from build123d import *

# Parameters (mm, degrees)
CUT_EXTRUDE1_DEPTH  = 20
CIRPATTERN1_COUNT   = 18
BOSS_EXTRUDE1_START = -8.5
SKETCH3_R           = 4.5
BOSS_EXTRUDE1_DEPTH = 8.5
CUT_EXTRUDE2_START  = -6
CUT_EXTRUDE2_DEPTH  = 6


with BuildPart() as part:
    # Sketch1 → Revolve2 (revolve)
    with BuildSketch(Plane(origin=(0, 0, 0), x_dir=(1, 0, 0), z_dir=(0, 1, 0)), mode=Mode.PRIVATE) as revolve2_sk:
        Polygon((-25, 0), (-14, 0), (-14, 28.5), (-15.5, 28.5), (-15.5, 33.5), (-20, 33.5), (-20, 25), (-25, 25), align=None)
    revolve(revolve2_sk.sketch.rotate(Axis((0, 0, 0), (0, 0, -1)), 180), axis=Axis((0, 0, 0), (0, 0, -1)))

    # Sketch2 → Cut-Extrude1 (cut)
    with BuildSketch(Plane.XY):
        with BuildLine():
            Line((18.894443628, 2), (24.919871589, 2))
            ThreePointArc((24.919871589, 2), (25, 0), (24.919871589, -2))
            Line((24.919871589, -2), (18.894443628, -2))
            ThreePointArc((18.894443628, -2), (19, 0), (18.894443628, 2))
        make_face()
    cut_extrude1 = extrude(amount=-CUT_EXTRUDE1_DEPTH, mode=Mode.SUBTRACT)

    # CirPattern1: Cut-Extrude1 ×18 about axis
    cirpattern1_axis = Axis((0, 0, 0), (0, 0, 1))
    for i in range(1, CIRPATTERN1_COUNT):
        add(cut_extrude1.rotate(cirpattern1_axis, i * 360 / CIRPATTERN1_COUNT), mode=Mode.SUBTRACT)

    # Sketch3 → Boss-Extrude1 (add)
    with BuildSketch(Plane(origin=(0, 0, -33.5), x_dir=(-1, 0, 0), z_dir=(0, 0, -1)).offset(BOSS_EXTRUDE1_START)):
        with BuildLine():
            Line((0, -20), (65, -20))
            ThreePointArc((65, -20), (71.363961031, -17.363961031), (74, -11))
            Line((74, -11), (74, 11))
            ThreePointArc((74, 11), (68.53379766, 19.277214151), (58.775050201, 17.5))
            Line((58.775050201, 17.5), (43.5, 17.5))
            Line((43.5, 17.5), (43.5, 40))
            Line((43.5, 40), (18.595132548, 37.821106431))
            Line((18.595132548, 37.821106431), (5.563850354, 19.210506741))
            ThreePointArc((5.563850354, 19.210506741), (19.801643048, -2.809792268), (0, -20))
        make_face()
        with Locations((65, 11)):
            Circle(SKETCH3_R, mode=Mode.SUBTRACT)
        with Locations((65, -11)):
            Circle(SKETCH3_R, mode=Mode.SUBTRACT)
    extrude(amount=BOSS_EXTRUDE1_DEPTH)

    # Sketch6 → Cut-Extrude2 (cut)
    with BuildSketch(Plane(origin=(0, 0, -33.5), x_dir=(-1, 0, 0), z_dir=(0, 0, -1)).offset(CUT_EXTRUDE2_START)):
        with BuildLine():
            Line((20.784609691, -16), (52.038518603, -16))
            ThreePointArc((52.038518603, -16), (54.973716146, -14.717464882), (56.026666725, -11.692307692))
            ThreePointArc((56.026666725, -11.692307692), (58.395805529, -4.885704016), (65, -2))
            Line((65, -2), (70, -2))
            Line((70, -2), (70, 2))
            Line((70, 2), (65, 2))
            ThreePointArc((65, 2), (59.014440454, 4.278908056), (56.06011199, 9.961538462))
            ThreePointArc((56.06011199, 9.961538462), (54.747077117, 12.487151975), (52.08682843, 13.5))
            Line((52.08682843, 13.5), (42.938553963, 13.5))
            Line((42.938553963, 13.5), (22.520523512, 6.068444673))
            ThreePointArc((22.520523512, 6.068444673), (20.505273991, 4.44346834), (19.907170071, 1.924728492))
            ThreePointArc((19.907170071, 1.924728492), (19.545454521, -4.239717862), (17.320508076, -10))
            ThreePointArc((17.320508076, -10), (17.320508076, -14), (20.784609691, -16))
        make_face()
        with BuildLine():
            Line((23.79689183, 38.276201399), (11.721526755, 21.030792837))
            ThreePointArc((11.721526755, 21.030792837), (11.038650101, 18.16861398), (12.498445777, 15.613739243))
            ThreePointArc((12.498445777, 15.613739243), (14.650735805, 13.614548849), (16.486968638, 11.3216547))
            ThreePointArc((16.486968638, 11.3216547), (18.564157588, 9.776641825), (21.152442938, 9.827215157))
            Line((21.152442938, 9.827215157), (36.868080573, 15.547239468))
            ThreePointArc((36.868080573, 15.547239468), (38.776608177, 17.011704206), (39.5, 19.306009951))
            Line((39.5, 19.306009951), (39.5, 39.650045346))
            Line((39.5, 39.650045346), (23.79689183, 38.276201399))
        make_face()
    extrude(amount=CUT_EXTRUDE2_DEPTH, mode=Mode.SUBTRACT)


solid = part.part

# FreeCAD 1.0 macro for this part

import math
import FreeCAD as App
import Part
import Sketcher
from FreeCAD import Vector
Q = App.Units.Quantity

doc = App.newDocument("Part")
params = doc.addObject("Spreadsheet::Sheet", "Params")
for row, (alias, value) in enumerate([
    ("sketch1_width", "11 mm"),
    ("sketch1_width2", "5 mm"),
    ("sketch1_height", "25 mm"),
    ("sketch1_width3", "1.5 mm"),
    ("sketch1_height2", "28.5 mm"),
    ("revolution_angle", "360 deg"),
    ("sketch2_radius", "19 mm"),
    ("sketch2_radius2", "25 mm"),
    ("pocket1_length", "20 mm"),
    ("sketch3_diameter", "9 mm"),
    ("sketch3_radius", "9 mm"),
    ("sketch3_radius2", "20 mm"),
    ("sketch3_width", "65 mm"),
    ("sketch3_height", "22 mm"),
    ("pad1_length", "8.5 mm"),
    ("sketch4_radius", "4 mm"),
    ("sketch4_radius2", "9 mm"),
    ("sketch4_radius3", "20 mm"),
    ("sketch4_width", "5 mm"),
    ("sketch4_height", "4 mm"),
    ("pocket2_length", "6 mm"),
], start=1):
    params.set(f"A{row}", alias)
    params.set(f"B{row}", "=" + value)
    params.setAlias(f"B{row}", alias)

body = doc.addObject("PartDesign::Body", "Body")

# Sketch on XZ plane
sketch1 = body.newObject("Sketcher::SketchObject", "Sketch")
sketch1.AttachmentSupport = (doc.getObject("XZ_Plane"), [""])
sketch1.MapMode = "FlatFace"
sketch1.addGeometry([
    Part.LineSegment(Vector(-25, 0, 0), Vector(-14, 0, 0)),  # 0
    Part.LineSegment(Vector(-14, 0, 0), Vector(-14, -28.5, 0)),  # 1
    Part.LineSegment(Vector(-14, -28.5, 0), Vector(-15.5, -28.5, 0)),  # 2
    Part.LineSegment(Vector(-15.5, -28.5, 0), Vector(-15.5, -33.5, 0)),  # 3
    Part.LineSegment(Vector(-15.5, -33.5, 0), Vector(-20, -33.5, 0)),  # 4
    Part.LineSegment(Vector(-20, -33.5, 0), Vector(-20, -25, 0)),  # 5
    Part.LineSegment(Vector(-20, -25, 0), Vector(-25, -25, 0)),  # 6
    Part.LineSegment(Vector(-25, -25, 0), Vector(-25, 0, 0)),  # 7
], False)
sketch1.addConstraint([
    Sketcher.Constraint("Coincident", 0, 2, 1, 1),
    Sketcher.Constraint("Coincident", 1, 2, 2, 1),
    Sketcher.Constraint("Coincident", 2, 2, 3, 1),
    Sketcher.Constraint("Coincident", 3, 2, 4, 1),
    Sketcher.Constraint("Coincident", 4, 2, 5, 1),
    Sketcher.Constraint("Coincident", 5, 2, 6, 1),
    Sketcher.Constraint("Coincident", 6, 2, 7, 1),
    Sketcher.Constraint("Coincident", 7, 2, 0, 1),
    Sketcher.Constraint("Horizontal", 0),
    Sketcher.Constraint("Vertical", 1),
    Sketcher.Constraint("Horizontal", 2),
    Sketcher.Constraint("Vertical", 3),
    Sketcher.Constraint("Horizontal", 4),
    Sketcher.Constraint("Vertical", 5),
    Sketcher.Constraint("Horizontal", 6),
    Sketcher.Constraint("Vertical", 7),
    Sketcher.Constraint("PointOnObject", 0, 2, -1),
    Sketcher.Constraint("Equal", 6, 3),
    Sketcher.Constraint("DistanceX", 0, 1, 0, 2, 11.0),
    Sketcher.Constraint("DistanceX", 6, 2, 6, 1, 5.0),
    Sketcher.Constraint("DistanceY", 7, 1, 7, 2, 25.0),
    Sketcher.Constraint("DistanceX", 2, 2, 2, 1, 1.5),
    Sketcher.Constraint("DistanceY", 1, 2, 1, 1, 28.5),
    Sketcher.Constraint("DistanceX", 0, 2, -1, 1, 14.0),
])
sketch1.setExpression("Constraints[18]", "Params.sketch1_width")
sketch1.setExpression("Constraints[19]", "Params.sketch1_width2")
sketch1.setExpression("Constraints[20]", "Params.sketch1_height")
sketch1.setExpression("Constraints[21]", "Params.sketch1_width3")
sketch1.setExpression("Constraints[22]", "Params.sketch1_height2")
revolution = body.newObject("PartDesign::Revolution", "Revolution")
revolution.Profile = sketch1
revolution.ReferenceAxis = (sketch1, ["V_Axis"])
revolution.setExpression("Angle", "Params.revolution_angle")

# Sketch on XY plane
sketch2 = body.newObject("Sketcher::SketchObject", "Sketch001")
sketch2.AttachmentSupport = (doc.getObject("XY_Plane"), [""])
sketch2.MapMode = "FlatFace"
sketch2.addGeometry([
    Part.LineSegment(Vector(24.919872, 2, 0), Vector(18.894444, 2, 0)),
    Part.ArcOfCircle(Part.Circle(Vector(0, 0, 0), Vector(0, 0, 1), 19), math.radians(-6.042328), math.radians(6.042328)),
    Part.LineSegment(Vector(18.894444, -2, 0), Vector(24.919872, -2, 0)),
    Part.ArcOfCircle(Part.Circle(Vector(0, 0, 0), Vector(0, 0, 1), 25), math.radians(-4.588566), math.radians(4.588566)),
], False)
sketch2.addConstraint([
    Sketcher.Constraint("Coincident", 0, 2, 1, 2),
    Sketcher.Constraint("Coincident", 1, 1, 2, 1),
    Sketcher.Constraint("Coincident", 2, 2, 3, 1),
    Sketcher.Constraint("Coincident", 3, 2, 0, 1),
    Sketcher.Constraint("Horizontal", 0),
    Sketcher.Constraint("Horizontal", 2),
    Sketcher.Constraint("Coincident", 1, 3, -1, 1),
    Sketcher.Constraint("Coincident", 3, 3, -1, 1),
    Sketcher.Constraint("Vertical", 0, 2, 1, 1),
    Sketcher.Constraint("Radius", 1, 19.0),
    Sketcher.Constraint("Radius", 3, 25.0),
    Sketcher.Constraint("DistanceY", -1, 1, 0, 2, 2.0),
])
sketch2.setExpression("Constraints[9]", "Params.sketch2_radius")
sketch2.setExpression("Constraints[10]", "Params.sketch2_radius2")
pocket1 = body.newObject("PartDesign::Pocket", "Pocket")
pocket1.Profile = sketch2
pocket1.setExpression("Length", "Params.pocket1_length")
doc.recompute()

polarpattern = body.newObject("PartDesign::PolarPattern", "PolarPattern")
polarpattern.Originals = [pocket1]
polarpattern.Axis = (doc.getObject("Z_Axis"), [""])
polarpattern.Angle = 360
polarpattern.Occurrences = 18
body.Tip = polarpattern

# Sketch on XY plane
sketch3 = body.newObject("Sketcher::SketchObject", "Sketch002")
sketch3.AttachmentSupport = (doc.getObject("XY_Plane"), [""])
sketch3.MapMode = "FlatFace"
sketch3.AttachmentOffset = App.Placement(Vector(0, 0, -25), App.Rotation())
sketch3.addGeometry([
    Part.LineSegment(Vector(0, -20, 0), Vector(-65, -20, 0)),  # 0
    Part.ArcOfCircle(Part.Circle(Vector(-65, -11, 0), Vector(0, 0, 1), 9), math.radians(180), math.radians(270)),  # 1
    Part.LineSegment(Vector(-74, -11, 0), Vector(-74, 11, 0)),  # 2
    Part.ArcOfCircle(Part.Circle(Vector(-65, 11, 0), Vector(0, 0, 1), 9), math.radians(46.238257), math.radians(180)),  # 3
    Part.LineSegment(Vector(-58.77505, 17.5, 0), Vector(-43.5, 17.5, 0)),  # 4
    Part.LineSegment(Vector(-43.5, 17.5, 0), Vector(-43.5, 40, 0)),  # 5
    Part.LineSegment(Vector(-43.5, 40, 0), Vector(-18.595133, 37.821106, 0)),  # 6
    Part.LineSegment(Vector(-18.595133, 37.821106, 0), Vector(-5.56385, 19.210507, 0)),  # 7
    Part.ArcOfCircle(Part.Circle(Vector(0, 0, 0), Vector(0, 0, 1), 20), math.radians(106.152358), math.radians(270)),  # 8
    Part.Circle(Vector(-65, -11, 0), Vector(0, 0, 1), 4.5),  # 9
    Part.Circle(Vector(-65, 11, 0), Vector(0, 0, 1), 4.5),  # 10
], False)
sketch3.addConstraint([
    Sketcher.Constraint("Tangent", 0, 2, 1, 2),
    Sketcher.Constraint("Tangent", 1, 1, 2, 1),
    Sketcher.Constraint("Tangent", 2, 2, 3, 2),
    Sketcher.Constraint("Coincident", 3, 1, 4, 1),
    Sketcher.Constraint("Coincident", 4, 2, 5, 1),
    Sketcher.Constraint("Coincident", 5, 2, 6, 1),
    Sketcher.Constraint("Coincident", 6, 2, 7, 1),
    Sketcher.Constraint("Coincident", 7, 2, 8, 1),
    Sketcher.Constraint("Tangent", 8, 2, 0, 1),
    Sketcher.Constraint("Horizontal", 0),
    Sketcher.Constraint("Vertical", 2),
    Sketcher.Constraint("Horizontal", 4),
    Sketcher.Constraint("Vertical", 5),
    Sketcher.Constraint("Coincident", 8, 3, -1, 1),
    Sketcher.Constraint("Coincident", 9, 3, 1, 3),
    Sketcher.Constraint("Coincident", 10, 3, 3, 3),
    Sketcher.Constraint("Equal", 1, 3),
    Sketcher.Constraint("Equal", 9, 10),
    Sketcher.Constraint("Diameter", 9, 9.0),
    Sketcher.Constraint("Radius", 1, 9.0),
    Sketcher.Constraint("Radius", 8, 20.0),
    Sketcher.Constraint("DistanceX", 0, 2, 0, 1, 65.0),
    Sketcher.Constraint("DistanceY", 2, 1, 2, 2, 22.0),
    Sketcher.Constraint("Angle", 6, Q("-5 deg")),
    Sketcher.Constraint("Angle", 7, Q("-55 deg")),
    Sketcher.Constraint("Distance", 6, 25.0),
    Sketcher.Constraint("DistanceY", 5, 1, 5, 2, 22.5),
    Sketcher.Constraint("DistanceY", -1, 1, 5, 2, 40.0),
    Sketcher.Constraint("DistanceX", 4, 2, -1, 1, 43.5),
])
sketch3.setExpression("Constraints[18]", "Params.sketch3_diameter")
sketch3.setExpression("Constraints[19]", "Params.sketch3_radius")
sketch3.setExpression("Constraints[20]", "Params.sketch3_radius2")
sketch3.setExpression("Constraints[21]", "Params.sketch3_width")
sketch3.setExpression("Constraints[22]", "Params.sketch3_height")
pad1 = body.newObject("PartDesign::Pad", "Pad")
pad1.Profile = sketch3
pad1.setExpression("Length", "Params.pad1_length")
pad1.Reversed = True

# Sketch on XY plane
sketch4 = body.newObject("Sketcher::SketchObject", "Sketch003")
sketch4.AttachmentSupport = (doc.getObject("XY_Plane"), [""])
sketch4.MapMode = "FlatFace"
sketch4.AttachmentOffset = App.Placement(Vector(0, 0, -27.5), App.Rotation())
sketch4.addGeometry([
    Part.LineSegment(Vector(-20.78461, -16, 0), Vector(-52.038519, -16, 0)),  # 0
    Part.ArcOfCircle(Part.Circle(Vector(-52.038519, -12, 0), Vector(0, 0, 1), 4), math.radians(175.588274), math.radians(270)),  # 1
    Part.ArcOfCircle(Part.Circle(Vector(-65, -11, 0), Vector(0, 0, 1), 9), math.radians(-4.411726), math.radians(90)),  # 2
    Part.LineSegment(Vector(-65, -2, 0), Vector(-70, -2, 0)),  # 3
    Part.LineSegment(Vector(-70, -2, 0), Vector(-70, 2, 0)),  # 4
    Part.LineSegment(Vector(-70, 2, 0), Vector(-65, 2, 0)),  # 5
    Part.ArcOfCircle(Part.Circle(Vector(-65, 11, 0), Vector(0, 0, 1), 9), math.radians(-90), math.radians(-6.62581)),  # 6
    Part.ArcOfCircle(Part.Circle(Vector(-52.086828, 9.5, 0), Vector(0, 0, 1), 4), math.radians(90), math.radians(173.37419)),  # 7
    Part.LineSegment(Vector(-52.086828, 13.5, 0), Vector(-42.938554, 13.5, 0)),  # 8
    Part.LineSegment(Vector(-42.938554, 13.5, 0), Vector(-22.520524, 6.068445, 0)),  # 9
    Part.ArcOfCircle(Part.Circle(Vector(-23.888604, 2.309674, 0), Vector(0, 0, 1), 4), math.radians(-5.522488), math.radians(70)),  # 10
    Part.ArcOfCircle(Part.Circle(Vector(0, 0, 0), Vector(0, 0, 1), 20), math.radians(174.477512), math.radians(210)),  # 11
    Part.ArcOfCircle(Part.Circle(Vector(-20.78461, -12, 0), Vector(0, 0, 1), 4), math.radians(-90), math.radians(30)),  # 12
    Part.LineSegment(Vector(-23.796892, 38.276201, 0), Vector(-11.721527, 21.030793, 0)),  # 13
    Part.ArcOfCircle(Part.Circle(Vector(-14.998135, 18.736487, 0), Vector(0, 0, 1), 4), math.radians(-51.323516), math.radians(35)),  # 14
    Part.ArcOfCircle(Part.Circle(Vector(0, 0, 0), Vector(0, 0, 1), 20), math.radians(128.676484), math.radians(145.522488)),  # 15
    Part.ArcOfCircle(Part.Circle(Vector(-19.784362, 13.585986, 0), Vector(0, 0, 1), 4), math.radians(-110), math.radians(-34.477512)),  # 16
    Part.LineSegment(Vector(-21.152443, 9.827215, 0), Vector(-36.868081, 15.547239, 0)),  # 17
    Part.ArcOfCircle(Part.Circle(Vector(-35.5, 19.30601, 0), Vector(0, 0, 1), 4), math.radians(-180), math.radians(-110)),  # 18
    Part.LineSegment(Vector(-39.5, 19.30601, 0), Vector(-39.5, 39.650045, 0)),  # 19
    Part.LineSegment(Vector(-39.5, 39.650045, 0), Vector(-23.796892, 38.276201, 0)),  # 20
], False)
sketch4.addConstraint([
    Sketcher.Constraint("Tangent", 0, 2, 1, 2),
    Sketcher.Constraint("Tangent", 1, 1, 2, 1),
    Sketcher.Constraint("Tangent", 2, 2, 3, 1),
    Sketcher.Constraint("Coincident", 3, 2, 4, 1),
    Sketcher.Constraint("Coincident", 4, 2, 5, 1),
    Sketcher.Constraint("Tangent", 5, 2, 6, 1),
    Sketcher.Constraint("Tangent", 6, 2, 7, 2),
    Sketcher.Constraint("Tangent", 7, 1, 8, 1),
    Sketcher.Constraint("Coincident", 8, 2, 9, 1),
    Sketcher.Constraint("Tangent", 9, 2, 10, 2),
    Sketcher.Constraint("Tangent", 10, 1, 11, 1),
    Sketcher.Constraint("Tangent", 11, 2, 12, 2),
    Sketcher.Constraint("Tangent", 12, 1, 0, 1),
    Sketcher.Constraint("Tangent", 13, 2, 14, 2),
    Sketcher.Constraint("Tangent", 14, 1, 15, 1),
    Sketcher.Constraint("Tangent", 15, 2, 16, 2),
    Sketcher.Constraint("Tangent", 16, 1, 17, 1),
    Sketcher.Constraint("Tangent", 17, 2, 18, 2),
    Sketcher.Constraint("Tangent", 18, 1, 19, 1),
    Sketcher.Constraint("Coincident", 19, 2, 20, 1),
    Sketcher.Constraint("Coincident", 20, 2, 13, 1),
    Sketcher.Constraint("Horizontal", 0),
    Sketcher.Constraint("Horizontal", 3),
    Sketcher.Constraint("Vertical", 4),
    Sketcher.Constraint("Horizontal", 5),
    Sketcher.Constraint("Horizontal", 8),
    Sketcher.Constraint("Vertical", 19),
    Sketcher.Constraint("Coincident", 11, 3, -1, 1),
    Sketcher.Constraint("Coincident", 15, 3, -1, 1),
    Sketcher.Constraint("Equal", 2, 6),
    Sketcher.Constraint("Equal", 1, 7),
    Sketcher.Constraint("Equal", 7, 10),
    Sketcher.Constraint("Equal", 10, 12),
    Sketcher.Constraint("Equal", 12, 14),
    Sketcher.Constraint("Equal", 11, 15),
    Sketcher.Constraint("Equal", 14, 16),
    Sketcher.Constraint("Equal", 16, 18),
    Sketcher.Constraint("Symmetric", 2, 3, 6, 3, -1),
    Sketcher.Constraint("Parallel", 9, 17),
    Sketcher.Constraint("Radius", 1, 4.0),
    Sketcher.Constraint("Radius", 2, 9.0),
    Sketcher.Constraint("Radius", 11, 20.0),
    Sketcher.Constraint("DistanceX", 3, 2, 3, 1, 5.0),
    Sketcher.Constraint("DistanceY", 4, 1, 4, 2, 4.0),
    Sketcher.Constraint("Angle", 9, Q("-20 deg")),
    Sketcher.Constraint("Angle", 13, Q("-55 deg")),
    Sketcher.Constraint("Angle", 20, Q("-5 deg")),
    Sketcher.Constraint("DistanceY", 1, 3, -1, 1, 12.0),
    Sketcher.Constraint("DistanceX", 2, 3, -1, 1, 65.0),
    Sketcher.Constraint("DistanceY", -1, 1, 7, 3, 9.5),
    Sketcher.Constraint("DistanceX", 18, 3, -1, 1, 35.5),
    Sketcher.Constraint("DistanceY", -1, 1, 20, 2, 38.276201),
    Sketcher.Constraint("DistanceY", 16, 3, 14, 3, 5.150501),
    Sketcher.Constraint("DistanceX", 10, 1, 15, 2, 3.420201),
    Sketcher.Constraint("Distance", 20, 15.763091),
])
sketch4.setExpression("Constraints[39]", "Params.sketch4_radius")
sketch4.setExpression("Constraints[40]", "Params.sketch4_radius2")
sketch4.setExpression("Constraints[41]", "Params.sketch4_radius3")
sketch4.setExpression("Constraints[42]", "Params.sketch4_width")
sketch4.setExpression("Constraints[43]", "Params.sketch4_height")
pocket2 = body.newObject("PartDesign::Pocket", "Pocket001")
pocket2.Profile = sketch4
pocket2.setExpression("Length", "Params.pocket2_length")

doc.recompute()
